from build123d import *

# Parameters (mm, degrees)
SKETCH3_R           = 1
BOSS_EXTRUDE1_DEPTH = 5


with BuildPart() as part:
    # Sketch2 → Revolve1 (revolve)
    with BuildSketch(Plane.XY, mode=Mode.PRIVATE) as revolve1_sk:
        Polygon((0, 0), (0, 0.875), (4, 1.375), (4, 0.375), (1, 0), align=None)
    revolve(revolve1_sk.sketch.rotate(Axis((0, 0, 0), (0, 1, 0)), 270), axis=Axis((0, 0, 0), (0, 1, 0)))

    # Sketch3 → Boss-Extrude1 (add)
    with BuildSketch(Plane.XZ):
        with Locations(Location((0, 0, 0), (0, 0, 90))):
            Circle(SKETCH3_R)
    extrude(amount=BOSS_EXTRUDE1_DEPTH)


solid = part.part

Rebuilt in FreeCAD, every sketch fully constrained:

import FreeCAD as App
import Part
import Sketcher
from FreeCAD import Vector
Q = App.Units.Quantity

doc = App.newDocument("Part")
body = doc.addObject("PartDesign::Body", "Body")

# Sketch on XY plane
sketch1 = body.newObject("Sketcher::SketchObject", "Sketch")
sketch1.AttachmentSupport = (doc.getObject("XY_Plane"), [""])
sketch1.MapMode = "FlatFace"
sketch1.addGeometry([
    Part.LineSegment(Vector(0, 0.9, 0), Vector(0, 0, 0)),  # 0
    Part.LineSegment(Vector(0, 0, 0), Vector(1, 0, 0)),  # 1
    Part.LineSegment(Vector(1, 0, 0), Vector(4, 0.4, 0)),  # 2
    Part.LineSegment(Vector(4, 0.4, 0), Vector(4, 1.4, 0)),  # 3
    Part.LineSegment(Vector(4, 1.4, 0), Vector(0, 0.9, 0)),  # 4
], False)
sketch1.addConstraint([
    Sketcher.Constraint("Coincident", 0, 2, 1, 1),
    Sketcher.Constraint("Coincident", 1, 2, 2, 1),
    Sketcher.Constraint("Coincident", 2, 2, 3, 1),
    Sketcher.Constraint("Coincident", 3, 2, 4, 1),
    Sketcher.Constraint("Coincident", 4, 2, 0, 1),
    Sketcher.Constraint("Vertical", 0),
    Sketcher.Constraint("Horizontal", 1),
    Sketcher.Constraint("Vertical", 3),
    Sketcher.Constraint("Coincident", 0, 2, -1, 1),
    Sketcher.Constraint("Parallel", 2, 4),
    Sketcher.Constraint("Equal", 1, 3),
    Sketcher.Constraint("DistanceX", 1, 1, 1, 2, Q("1 mm")),
    Sketcher.Constraint("DistanceX", -1, 1, 2, 2, Q("4 mm")),
    Sketcher.Constraint("DistanceY", 2, 2, 4, 2, Q("0.5 mm")),
])
revolution = body.newObject("PartDesign::Revolution", "Revolution")
revolution.Profile = sketch1
revolution.ReferenceAxis = (sketch1, ["V_Axis"])
revolution.Angle = 360

# Sketch on XZ plane
sketch2 = body.newObject("Sketcher::SketchObject", "Sketch001")
sketch2.AttachmentSupport = (doc.getObject("XZ_Plane"), [""])
sketch2.MapMode = "FlatFace"
sketch2.addGeometry(Part.Circle(Vector(0, 0, 0), Vector(0, 0, 1), 1), False)
sketch2.addConstraint([
    Sketcher.Constraint("Coincident", 0, 3, -1, 1),
    Sketcher.Constraint("Diameter", 0, Q("2 mm")),
])
pad1 = body.newObject("PartDesign::Pad", "Pad")
pad1.Profile = sketch2
pad1.Length = 5

doc.recompute()
